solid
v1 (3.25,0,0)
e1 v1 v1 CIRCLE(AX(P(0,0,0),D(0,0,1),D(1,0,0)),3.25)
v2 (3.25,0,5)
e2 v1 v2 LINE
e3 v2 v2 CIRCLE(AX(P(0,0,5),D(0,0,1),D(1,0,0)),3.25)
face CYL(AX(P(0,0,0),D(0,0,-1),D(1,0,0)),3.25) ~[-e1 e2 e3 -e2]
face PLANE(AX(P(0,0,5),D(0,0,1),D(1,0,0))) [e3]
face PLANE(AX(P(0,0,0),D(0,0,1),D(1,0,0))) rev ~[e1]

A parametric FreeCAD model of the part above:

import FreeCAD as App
import Part
import Sketcher
Q = App.Units.Quantity

doc = App.newDocument("Part")
body = doc.addObject("PartDesign::Body", "Body")

sketch1 = body.newObject("Sketcher::SketchObject", "Sketch")
sketch1.AttachmentSupport = (doc.getObject("XY_Plane"), [""])
sketch1.MapMode = "FlatFace"
sketch1.addGeometry(Part.Circle(App.Vector(0, 0, 0), App.Vector(0, 0, 1), 3.2), False)
sketch1.addConstraint(Sketcher.Constraint("Coincident", 0, 3, -1, 1))
sketch1.addConstraint(Sketcher.Constraint("Diameter", 0, Q("6.5 mm")))
pad1 = body.newObject("PartDesign::Pad", "Pad")
pad1.Profile = sketch1
pad1.Length = 5

doc.recompute()
